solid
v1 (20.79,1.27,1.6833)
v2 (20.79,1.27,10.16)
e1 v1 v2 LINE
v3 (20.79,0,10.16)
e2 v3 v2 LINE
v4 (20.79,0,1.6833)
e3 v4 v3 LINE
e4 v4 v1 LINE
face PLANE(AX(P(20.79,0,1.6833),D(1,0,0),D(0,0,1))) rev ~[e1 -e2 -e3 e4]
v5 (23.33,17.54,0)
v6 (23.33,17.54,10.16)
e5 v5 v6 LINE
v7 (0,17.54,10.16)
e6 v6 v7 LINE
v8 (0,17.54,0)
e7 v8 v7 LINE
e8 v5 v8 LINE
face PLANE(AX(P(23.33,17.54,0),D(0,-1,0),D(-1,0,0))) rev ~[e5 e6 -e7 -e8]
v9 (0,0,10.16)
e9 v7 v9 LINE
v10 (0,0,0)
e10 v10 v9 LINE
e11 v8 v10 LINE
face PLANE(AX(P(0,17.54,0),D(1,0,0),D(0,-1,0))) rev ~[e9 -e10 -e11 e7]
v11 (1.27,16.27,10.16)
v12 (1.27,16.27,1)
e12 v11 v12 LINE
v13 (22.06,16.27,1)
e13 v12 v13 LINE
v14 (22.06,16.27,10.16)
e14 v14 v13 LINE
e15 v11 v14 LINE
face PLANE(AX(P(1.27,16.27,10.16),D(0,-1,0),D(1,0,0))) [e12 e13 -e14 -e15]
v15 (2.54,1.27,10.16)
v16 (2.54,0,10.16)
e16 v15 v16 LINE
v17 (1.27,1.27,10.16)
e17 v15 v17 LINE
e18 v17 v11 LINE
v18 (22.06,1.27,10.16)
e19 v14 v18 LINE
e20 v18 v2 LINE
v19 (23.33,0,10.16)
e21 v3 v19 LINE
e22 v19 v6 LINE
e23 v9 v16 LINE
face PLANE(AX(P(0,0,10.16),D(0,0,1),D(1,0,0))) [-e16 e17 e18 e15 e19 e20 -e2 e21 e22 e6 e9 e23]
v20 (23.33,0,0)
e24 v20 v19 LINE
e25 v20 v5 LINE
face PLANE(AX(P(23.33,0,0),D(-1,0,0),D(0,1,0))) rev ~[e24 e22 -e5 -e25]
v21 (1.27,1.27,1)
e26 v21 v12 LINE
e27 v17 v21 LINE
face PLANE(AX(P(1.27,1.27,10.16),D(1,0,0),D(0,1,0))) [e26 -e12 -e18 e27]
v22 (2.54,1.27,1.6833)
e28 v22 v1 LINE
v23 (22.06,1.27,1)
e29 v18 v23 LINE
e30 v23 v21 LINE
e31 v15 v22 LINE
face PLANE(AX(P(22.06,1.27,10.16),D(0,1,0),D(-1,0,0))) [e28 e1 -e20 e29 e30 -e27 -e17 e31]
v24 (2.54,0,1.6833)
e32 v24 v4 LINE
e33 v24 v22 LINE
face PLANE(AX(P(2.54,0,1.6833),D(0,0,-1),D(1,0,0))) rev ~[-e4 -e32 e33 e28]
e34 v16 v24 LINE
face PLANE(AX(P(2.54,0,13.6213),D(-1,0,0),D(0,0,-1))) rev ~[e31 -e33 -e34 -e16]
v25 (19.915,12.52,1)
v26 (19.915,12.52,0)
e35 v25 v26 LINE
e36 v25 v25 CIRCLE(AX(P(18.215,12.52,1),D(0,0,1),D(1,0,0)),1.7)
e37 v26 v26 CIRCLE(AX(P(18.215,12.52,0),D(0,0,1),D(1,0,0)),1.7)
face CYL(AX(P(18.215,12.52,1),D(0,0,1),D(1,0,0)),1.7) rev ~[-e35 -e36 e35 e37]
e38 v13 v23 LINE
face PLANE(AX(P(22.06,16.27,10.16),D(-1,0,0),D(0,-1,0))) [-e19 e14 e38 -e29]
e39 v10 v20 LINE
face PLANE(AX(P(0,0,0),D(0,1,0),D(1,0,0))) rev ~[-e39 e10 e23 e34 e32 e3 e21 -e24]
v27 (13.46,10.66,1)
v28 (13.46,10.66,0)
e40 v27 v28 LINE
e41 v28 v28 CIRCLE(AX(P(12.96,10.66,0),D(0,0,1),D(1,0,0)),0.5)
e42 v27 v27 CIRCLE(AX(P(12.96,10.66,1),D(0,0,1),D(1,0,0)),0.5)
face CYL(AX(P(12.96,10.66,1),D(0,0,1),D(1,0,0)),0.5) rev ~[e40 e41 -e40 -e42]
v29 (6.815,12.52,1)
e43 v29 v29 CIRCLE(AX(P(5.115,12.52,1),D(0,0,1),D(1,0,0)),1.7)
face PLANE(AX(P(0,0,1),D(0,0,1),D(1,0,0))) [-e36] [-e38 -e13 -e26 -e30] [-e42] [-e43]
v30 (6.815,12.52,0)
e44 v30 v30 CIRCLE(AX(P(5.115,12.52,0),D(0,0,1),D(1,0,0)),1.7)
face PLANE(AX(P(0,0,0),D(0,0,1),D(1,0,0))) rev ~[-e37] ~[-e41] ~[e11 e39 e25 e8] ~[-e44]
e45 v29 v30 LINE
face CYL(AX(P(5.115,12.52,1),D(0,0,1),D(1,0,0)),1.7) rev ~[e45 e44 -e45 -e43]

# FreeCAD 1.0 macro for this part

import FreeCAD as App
import Part
import Sketcher
Q = App.Units.Quantity

doc = App.newDocument("Part")
body = doc.addObject("PartDesign::Body", "Body")

sketch1 = body.newObject("Sketcher::SketchObject", "Sketch")
sketch1.AttachmentSupport = (doc.getObject("XY_Plane"), [""])
sketch1.MapMode = "FlatFace"
sketch1.addGeometry(Part.LineSegment(App.Vector(0, 17.54, 0), App.Vector(0, 0, 0)), False)
sketch1.addGeometry(Part.LineSegment(App.Vector(0, 0, 0), App.Vector(23.33, 0, 0)), False)
sketch1.addGeometry(Part.LineSegment(App.Vector(23.33, 0, 0), App.Vector(23.33, 17.54, 0)), False)
sketch1.addGeometry(Part.LineSegment(App.Vector(23.33, 17.54, 0), App.Vector(0, 17.54, 0)), False)
sketch1.addConstraint(Sketcher.Constraint("Coincident", 0, 2, 1, 1))
sketch1.addConstraint(Sketcher.Constraint("Coincident", 1, 2, 2, 1))
sketch1.addConstraint(Sketcher.Constraint("Coincident", 2, 2, 3, 1))
sketch1.addConstraint(Sketcher.Constraint("Coincident", 3, 2, 0, 1))
sketch1.addConstraint(Sketcher.Constraint("Vertical", 0))
sketch1.addConstraint(Sketcher.Constraint("Horizontal", 1))
sketch1.addConstraint(Sketcher.Constraint("Vertical", 2))
sketch1.addConstraint(Sketcher.Constraint("Horizontal", 3))
sketch1.addConstraint(Sketcher.Constraint("Coincident", 0, 2, -1, 1))
sketch1.addConstraint(Sketcher.Constraint("DistanceX", 1, 1, 1, 2, Q("23.33 mm")))
sketch1.addConstraint(Sketcher.Constraint("DistanceY", 0, 2, 0, 1, Q("17.54 mm")))
pad1 = body.newObject("PartDesign::Pad", "Pad")
pad1.Profile = sketch1
pad1.Length = 10.16

sketch2 = body.newObject("Sketcher::SketchObject", "Sketch001")
sketch2.AttachmentSupport = (doc.getObject("XY_Plane"), [""])
sketch2.MapMode = "FlatFace"
sketch2.AttachmentOffset = App.Placement(App.Vector(0, 0, 10.16), App.Rotation())
sketch2.addGeometry(Part.LineSegment(App.Vector(22.06, 16.27, 0), App.Vector(1.27, 16.27, 0)), False)
sketch2.addGeometry(Part.LineSegment(App.Vector(1.27, 16.27, 0), App.Vector(1.27, 1.27, 0)), False)
sketch2.addGeometry(Part.LineSegment(App.Vector(1.27, 1.27, 0), App.Vector(22.06, 1.27, 0)), False)
sketch2.addGeometry(Part.LineSegment(App.Vector(22.06, 1.27, 0), App.Vector(22.06, 16.27, 0)), False)
sketch2.addConstraint(Sketcher.Constraint("Coincident", 0, 2, 1, 1))
sketch2.addConstraint(Sketcher.Constraint("Coincident", 1, 2, 2, 1))
sketch2.addConstraint(Sketcher.Constraint("Coincident", 2, 2, 3, 1))
sketch2.addConstraint(Sketcher.Constraint("Coincident", 3, 2, 0, 1))
sketch2.addConstraint(Sketcher.Constraint("Horizontal", 0))
sketch2.addConstraint(Sketcher.Constraint("Vertical", 1))
sketch2.addConstraint(Sketcher.Constraint("Horizontal", 2))
sketch2.addConstraint(Sketcher.Constraint("Vertical", 3))
sketch2.addConstraint(Sketcher.Constraint("DistanceY", 1, 2, 1, 1, Q("15 mm")))
sketch2.addConstraint(Sketcher.Constraint("DistanceX", -1, 1, 0, 2, Q("1.27 mm")))
sketch2.addConstraint(Sketcher.Constraint("DistanceY", -1, 1, 1, 2, Q("1.27 mm")))
sketch2.addConstraint(Sketcher.Constraint("DistanceX", 0, 2, 0, 1, Q("20.79 mm")))
pocket1 = body.newObject("PartDesign::Pocket", "Pocket")
pocket1.Profile = sketch2
pocket1.Length = 9.16

sketch3 = body.newObject("Sketcher::SketchObject", "Sketch002")
sketch3.AttachmentSupport = (doc.getObject("XY_Plane"), [""])
sketch3.MapMode = "FlatFace"
sketch3.AttachmentOffset = App.Placement(App.Vector(0, 0, 1), App.Rotation())
sketch3.addGeometry(Part.Circle(App.Vector(5.115, 12.52, 0), App.Vector(0, 0, 1), 1.7), False)
sketch3.addGeometry(Part.Circle(App.Vector(12.96, 10.66, 0), App.Vector(0, 0, 1), 0.5), False)
sketch3.addGeometry(Part.Circle(App.Vector(18.215, 12.52, 0), App.Vector(0, 0, 1), 1.7), False)
sketch3.addConstraint(Sketcher.Constraint("Equal", 0, 2))
sketch3.addConstraint(Sketcher.Constraint("Horizontal", 0, 3, 2, 3))
sketch3.addConstraint(Sketcher.Constraint("Diameter", 1, Q("1 mm")))
sketch3.addConstraint(Sketcher.Constraint("Diameter", 0, Q("3.4 mm")))
sketch3.addConstraint(Sketcher.Constraint("DistanceY", 1, 3, 0, 3, Q("1.86 mm")))
sketch3.addConstraint(Sketcher.Constraint("DistanceX", 1, 3, 2, 3, Q("5.255 mm")))
sketch3.addConstraint(Sketcher.Constraint("DistanceX", 0, 3, 2, 3, Q("13.1 mm")))
sketch3.addConstraint(Sketcher.Constraint("DistanceY", -1, 1, 0, 3, Q("12.52 mm")))
sketch3.addConstraint(Sketcher.Constraint("DistanceX", -1, 1, 1, 3, Q("12.96 mm")))
pocket2 = body.newObject("PartDesign::Pocket", "Pocket001")
pocket2.Profile = sketch3
pocket2.Type = "ThroughAll"

sketch4 = body.newObject("Sketcher::SketchObject", "Sketch003")
sketch4.AttachmentSupport = (doc.getObject("XZ_Plane"), [""])
sketch4.MapMode = "FlatFace"
sketch4.addGeometry(Part.LineSegment(App.Vector(2.54, 13.6213, 0), App.Vector(2.54, 1.6833, 0)), False)
sketch4.addGeometry(Part.LineSegment(App.Vector(2.54, 1.6833, 0), App.Vector(20.79, 1.6833, 0)), False)
sketch4.addGeometry(Part.LineSegment(App.Vector(20.79, 1.6833, 0), App.Vector(20.79, 13.6213, 0)), False)
sketch4.addGeometry(Part.LineSegment(App.Vector(20.79, 13.6213, 0), App.Vector(2.54, 13.6213, 0)), False)
sketch4.addConstraint(Sketcher.Constraint("Coincident", 0, 2, 1, 1))
sketch4.addConstraint(Sketcher.Constraint("Coincident", 1, 2, 2, 1))
sketch4.addConstraint(Sketcher.Constraint("Coincident", 2, 2, 3, 1))
sketch4.addConstraint(Sketcher.Constraint("Coincident", 3, 2, 0, 1))
sketch4.addConstraint(Sketcher.Constraint("Vertical", 0))
sketch4.addConstraint(Sketcher.Constraint("Horizontal", 1))
sketch4.addConstraint(Sketcher.Constraint("Vertical", 2))
sketch4.addConstraint(Sketcher.Constraint("Horizontal", 3))
sketch4.addConstraint(Sketcher.Constraint("DistanceY", 0, 2, 0, 1, Q("11.938 mm")))
sketch4.addConstraint(Sketcher.Constraint("DistanceX", 1, 1, 1, 2, Q("18.25 mm")))
sketch4.addConstraint(Sketcher.Constraint("DistanceX", -1, 1, 0, 2, Q("2.54 mm")))
sketch4.addConstraint(Sketcher.Constraint("DistanceY", -1, 1, 0, 2, Q("1.6833 mm")))
pocket3 = body.newObject("PartDesign::Pocket", "Pocket002")
pocket3.Profile = sketch4
pocket3.Length = 1.27

doc.recompute()
